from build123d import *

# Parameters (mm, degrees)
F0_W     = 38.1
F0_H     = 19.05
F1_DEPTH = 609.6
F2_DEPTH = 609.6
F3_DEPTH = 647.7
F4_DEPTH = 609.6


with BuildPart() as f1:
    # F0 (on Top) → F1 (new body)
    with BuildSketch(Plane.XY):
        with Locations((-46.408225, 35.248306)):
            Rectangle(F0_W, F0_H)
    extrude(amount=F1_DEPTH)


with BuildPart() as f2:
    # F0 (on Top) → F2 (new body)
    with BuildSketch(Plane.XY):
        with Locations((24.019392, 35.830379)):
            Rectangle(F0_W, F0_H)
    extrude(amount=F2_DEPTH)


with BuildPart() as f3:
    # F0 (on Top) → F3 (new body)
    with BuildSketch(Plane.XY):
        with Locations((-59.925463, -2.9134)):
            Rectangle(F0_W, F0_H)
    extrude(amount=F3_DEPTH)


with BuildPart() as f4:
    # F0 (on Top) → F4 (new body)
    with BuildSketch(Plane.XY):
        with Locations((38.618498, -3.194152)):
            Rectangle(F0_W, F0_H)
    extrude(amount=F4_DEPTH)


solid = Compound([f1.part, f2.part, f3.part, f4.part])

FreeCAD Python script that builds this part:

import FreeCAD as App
import Part
import Sketcher
Q = App.Units.Quantity

doc = App.newDocument("Part")
body = doc.addObject("PartDesign::Body", "Body")

# Sketch on XY plane
sketch1 = doc.addObject("Sketcher::SketchObject", "Sketch")
body.addObject(sketch1)
sketch1.AttachmentSupport = (doc.XY_Plane, [""])
sketch1.MapMode = "FlatFace"
sketch1.addGeometry(Part.LineSegment(App.Vector(-65, 45, 0), App.Vector(-65, 26, 0)), False)
sketch1.addGeometry(Part.LineSegment(App.Vector(-65, 26, 0), App.Vector(-27, 26, 0)), False)
sketch1.addGeometry(Part.LineSegment(App.Vector(-27, 26, 0), App.Vector(-27, 45, 0)), False)
sketch1.addGeometry(Part.LineSegment(App.Vector(-27, 45, 0), App.Vector(-65, 45, 0)), False)
sketch1.addConstraint(Sketcher.Constraint("Coincident", 0, 2, 1, 1))
sketch1.addConstraint(Sketcher.Constraint("Coincident", 1, 2, 2, 1))
sketch1.addConstraint(Sketcher.Constraint("Coincident", 2, 2, 3, 1))
sketch1.addConstraint(Sketcher.Constraint("Coincident", 3, 2, 0, 1))
sketch1.addConstraint(Sketcher.Constraint("Vertical", 0))
sketch1.addConstraint(Sketcher.Constraint("Horizontal", 1))
sketch1.addConstraint(Sketcher.Constraint("Vertical", 2))
sketch1.addConstraint(Sketcher.Constraint("Horizontal", 3))
sketch1.addConstraint(Sketcher.Constraint("DistanceX", 1, 1, 1, 2, Q("1.5 in")))
sketch1.addConstraint(Sketcher.Constraint("DistanceY", 0, 2, 0, 1, Q("0.75 in")))
sketch1.addConstraint(Sketcher.Constraint("DistanceX", 0, 2, -1, 1, 65.458225))
sketch1.addConstraint(Sketcher.Constraint("DistanceY", -1, 1, 0, 2, 25.723306))
pad1 = doc.addObject("PartDesign::Pad", "Pad")
body.addObject(pad1)
pad1.Profile = sketch1
pad1.Length = Q("24 in")
body2 = doc.addObject("PartDesign::Body", "Body001")

# Sketch on XY plane
sketch2 = doc.addObject("Sketcher::SketchObject", "Sketch001")
body2.addObject(sketch2)
sketch2.AttachmentSupport = (doc.getObject("XY_Plane001"), [""])
sketch2.MapMode = "FlatFace"
sketch2.addGeometry(Part.LineSegment(App.Vector(5, 45, 0), App.Vector(5, 26, 0)), False)
sketch2.addGeometry(Part.LineSegment(App.Vector(5, 26, 0), App.Vector(43, 26, 0)), False)
sketch2.addGeometry(Part.LineSegment(App.Vector(43, 26, 0), App.Vector(43, 45, 0)), False)
sketch2.addGeometry(Part.LineSegment(App.Vector(43, 45, 0), App.Vector(5, 45, 0)), False)
sketch2.addConstraint(Sketcher.Constraint("Coincident", 0, 2, 1, 1))
sketch2.addConstraint(Sketcher.Constraint("Coincident", 1, 2, 2, 1))
sketch2.addConstraint(Sketcher.Constraint("Coincident", 2, 2, 3, 1))
sketch2.addConstraint(Sketcher.Constraint("Coincident", 3, 2, 0, 1))
sketch2.addConstraint(Sketcher.Constraint("Vertical", 0))
sketch2.addConstraint(Sketcher.Constraint("Horizontal", 1))
sketch2.addConstraint(Sketcher.Constraint("Vertical", 2))
sketch2.addConstraint(Sketcher.Constraint("Horizontal", 3))
sketch2.addConstraint(Sketcher.Constraint("DistanceX", 1, 1, 1, 2, Q("1.5 in")))
sketch2.addConstraint(Sketcher.Constraint("DistanceY", 0, 2, 0, 1, Q("0.75 in")))
sketch2.addConstraint(Sketcher.Constraint("DistanceY", -1, 1, 0, 2, 26.305379))
sketch2.addConstraint(Sketcher.Constraint("DistanceX", -1, 1, 0, 2, 4.969392))
pad2 = doc.addObject("PartDesign::Pad", "Pad001")
body2.addObject(pad2)
pad2.Profile = sketch2
pad2.Length = Q("24 in")
body3 = doc.addObject("PartDesign::Body", "Body002")

# Sketch on XY plane
sketch3 = doc.addObject("Sketcher::SketchObject", "Sketch002")
body3.addObject(sketch3)
sketch3.AttachmentSupport = (doc.getObject("XY_Plane002"), [""])
sketch3.MapMode = "FlatFace"
sketch3.addGeometry(Part.LineSegment(App.Vector(-79, 7, 0), App.Vector(-79, -12, 0)), False)
sketch3.addGeometry(Part.LineSegment(App.Vector(-79, -12, 0), App.Vector(-41, -12, 0)), False)
sketch3.addGeometry(Part.LineSegment(App.Vector(-41, -12, 0), App.Vector(-41, 7, 0)), False)
sketch3.addGeometry(Part.LineSegment(App.Vector(-41, 7, 0), App.Vector(-79, 7, 0)), False)
sketch3.addConstraint(Sketcher.Constraint("Coincident", 0, 2, 1, 1))
sketch3.addConstraint(Sketcher.Constraint("Coincident", 1, 2, 2, 1))
sketch3.addConstraint(Sketcher.Constraint("Coincident", 2, 2, 3, 1))
sketch3.addConstraint(Sketcher.Constraint("Coincident", 3, 2, 0, 1))
sketch3.addConstraint(Sketcher.Constraint("Vertical", 0))
sketch3.addConstraint(Sketcher.Constraint("Horizontal", 1))
sketch3.addConstraint(Sketcher.Constraint("Vertical", 2))
sketch3.addConstraint(Sketcher.Constraint("Horizontal", 3))
sketch3.addConstraint(Sketcher.Constraint("DistanceX", 1, 1, 1, 2, Q("1.5 in")))
sketch3.addConstraint(Sketcher.Constraint("DistanceY", 0, 2, 0, 1, Q("0.75 in")))
sketch3.addConstraint(Sketcher.Constraint("DistanceY", 0, 2, -1, 1, 12.4384))
sketch3.addConstraint(Sketcher.Constraint("DistanceX", 0, 2, -1, 1, 78.975463))
pad3 = doc.addObject("PartDesign::Pad", "Pad002")
body3.addObject(pad3)
pad3.Profile = sketch3
pad3.Length = Q("25.5 in")
body4 = doc.addObject("PartDesign::Body", "Body003")

# Sketch on XY plane
sketch4 = doc.addObject("Sketcher::SketchObject", "Sketch003")
body4.addObject(sketch4)
sketch4.AttachmentSupport = (doc.getObject("XY_Plane003"), [""])
sketch4.MapMode = "FlatFace"
sketch4.addGeometry(Part.LineSegment(App.Vector(20, 6, 0), App.Vector(20, -13, 0)), False)
sketch4.addGeometry(Part.LineSegment(App.Vector(20, -13, 0), App.Vector(58, -13, 0)), False)
sketch4.addGeometry(Part.LineSegment(App.Vector(58, -13, 0), App.Vector(58, 6, 0)), False)
sketch4.addGeometry(Part.LineSegment(App.Vector(58, 6, 0), App.Vector(20, 6, 0)), False)
sketch4.addConstraint(Sketcher.Constraint("Coincident", 0, 2, 1, 1))
sketch4.addConstraint(Sketcher.Constraint("Coincident", 1, 2, 2, 1))
sketch4.addConstraint(Sketcher.Constraint("Coincident", 2, 2, 3, 1))
sketch4.addConstraint(Sketcher.Constraint("Coincident", 3, 2, 0, 1))
sketch4.addConstraint(Sketcher.Constraint("Vertical", 0))
sketch4.addConstraint(Sketcher.Constraint("Horizontal", 1))
sketch4.addConstraint(Sketcher.Constraint("Vertical", 2))
sketch4.addConstraint(Sketcher.Constraint("Horizontal", 3))
sketch4.addConstraint(Sketcher.Constraint("DistanceX", 1, 1, 1, 2, Q("1.5 in")))
sketch4.addConstraint(Sketcher.Constraint("DistanceY", 0, 2, 0, 1, Q("0.75 in")))
sketch4.addConstraint(Sketcher.Constraint("DistanceX", -1, 1, 0, 2, 19.568498))
sketch4.addConstraint(Sketcher.Constraint("DistanceY", 0, 2, -1, 1, 12.719152))
pad4 = doc.addObject("PartDesign::Pad", "Pad003")
body4.addObject(pad4)
pad4.Profile = sketch4
pad4.Length = Q("24 in")

doc.recompute()
